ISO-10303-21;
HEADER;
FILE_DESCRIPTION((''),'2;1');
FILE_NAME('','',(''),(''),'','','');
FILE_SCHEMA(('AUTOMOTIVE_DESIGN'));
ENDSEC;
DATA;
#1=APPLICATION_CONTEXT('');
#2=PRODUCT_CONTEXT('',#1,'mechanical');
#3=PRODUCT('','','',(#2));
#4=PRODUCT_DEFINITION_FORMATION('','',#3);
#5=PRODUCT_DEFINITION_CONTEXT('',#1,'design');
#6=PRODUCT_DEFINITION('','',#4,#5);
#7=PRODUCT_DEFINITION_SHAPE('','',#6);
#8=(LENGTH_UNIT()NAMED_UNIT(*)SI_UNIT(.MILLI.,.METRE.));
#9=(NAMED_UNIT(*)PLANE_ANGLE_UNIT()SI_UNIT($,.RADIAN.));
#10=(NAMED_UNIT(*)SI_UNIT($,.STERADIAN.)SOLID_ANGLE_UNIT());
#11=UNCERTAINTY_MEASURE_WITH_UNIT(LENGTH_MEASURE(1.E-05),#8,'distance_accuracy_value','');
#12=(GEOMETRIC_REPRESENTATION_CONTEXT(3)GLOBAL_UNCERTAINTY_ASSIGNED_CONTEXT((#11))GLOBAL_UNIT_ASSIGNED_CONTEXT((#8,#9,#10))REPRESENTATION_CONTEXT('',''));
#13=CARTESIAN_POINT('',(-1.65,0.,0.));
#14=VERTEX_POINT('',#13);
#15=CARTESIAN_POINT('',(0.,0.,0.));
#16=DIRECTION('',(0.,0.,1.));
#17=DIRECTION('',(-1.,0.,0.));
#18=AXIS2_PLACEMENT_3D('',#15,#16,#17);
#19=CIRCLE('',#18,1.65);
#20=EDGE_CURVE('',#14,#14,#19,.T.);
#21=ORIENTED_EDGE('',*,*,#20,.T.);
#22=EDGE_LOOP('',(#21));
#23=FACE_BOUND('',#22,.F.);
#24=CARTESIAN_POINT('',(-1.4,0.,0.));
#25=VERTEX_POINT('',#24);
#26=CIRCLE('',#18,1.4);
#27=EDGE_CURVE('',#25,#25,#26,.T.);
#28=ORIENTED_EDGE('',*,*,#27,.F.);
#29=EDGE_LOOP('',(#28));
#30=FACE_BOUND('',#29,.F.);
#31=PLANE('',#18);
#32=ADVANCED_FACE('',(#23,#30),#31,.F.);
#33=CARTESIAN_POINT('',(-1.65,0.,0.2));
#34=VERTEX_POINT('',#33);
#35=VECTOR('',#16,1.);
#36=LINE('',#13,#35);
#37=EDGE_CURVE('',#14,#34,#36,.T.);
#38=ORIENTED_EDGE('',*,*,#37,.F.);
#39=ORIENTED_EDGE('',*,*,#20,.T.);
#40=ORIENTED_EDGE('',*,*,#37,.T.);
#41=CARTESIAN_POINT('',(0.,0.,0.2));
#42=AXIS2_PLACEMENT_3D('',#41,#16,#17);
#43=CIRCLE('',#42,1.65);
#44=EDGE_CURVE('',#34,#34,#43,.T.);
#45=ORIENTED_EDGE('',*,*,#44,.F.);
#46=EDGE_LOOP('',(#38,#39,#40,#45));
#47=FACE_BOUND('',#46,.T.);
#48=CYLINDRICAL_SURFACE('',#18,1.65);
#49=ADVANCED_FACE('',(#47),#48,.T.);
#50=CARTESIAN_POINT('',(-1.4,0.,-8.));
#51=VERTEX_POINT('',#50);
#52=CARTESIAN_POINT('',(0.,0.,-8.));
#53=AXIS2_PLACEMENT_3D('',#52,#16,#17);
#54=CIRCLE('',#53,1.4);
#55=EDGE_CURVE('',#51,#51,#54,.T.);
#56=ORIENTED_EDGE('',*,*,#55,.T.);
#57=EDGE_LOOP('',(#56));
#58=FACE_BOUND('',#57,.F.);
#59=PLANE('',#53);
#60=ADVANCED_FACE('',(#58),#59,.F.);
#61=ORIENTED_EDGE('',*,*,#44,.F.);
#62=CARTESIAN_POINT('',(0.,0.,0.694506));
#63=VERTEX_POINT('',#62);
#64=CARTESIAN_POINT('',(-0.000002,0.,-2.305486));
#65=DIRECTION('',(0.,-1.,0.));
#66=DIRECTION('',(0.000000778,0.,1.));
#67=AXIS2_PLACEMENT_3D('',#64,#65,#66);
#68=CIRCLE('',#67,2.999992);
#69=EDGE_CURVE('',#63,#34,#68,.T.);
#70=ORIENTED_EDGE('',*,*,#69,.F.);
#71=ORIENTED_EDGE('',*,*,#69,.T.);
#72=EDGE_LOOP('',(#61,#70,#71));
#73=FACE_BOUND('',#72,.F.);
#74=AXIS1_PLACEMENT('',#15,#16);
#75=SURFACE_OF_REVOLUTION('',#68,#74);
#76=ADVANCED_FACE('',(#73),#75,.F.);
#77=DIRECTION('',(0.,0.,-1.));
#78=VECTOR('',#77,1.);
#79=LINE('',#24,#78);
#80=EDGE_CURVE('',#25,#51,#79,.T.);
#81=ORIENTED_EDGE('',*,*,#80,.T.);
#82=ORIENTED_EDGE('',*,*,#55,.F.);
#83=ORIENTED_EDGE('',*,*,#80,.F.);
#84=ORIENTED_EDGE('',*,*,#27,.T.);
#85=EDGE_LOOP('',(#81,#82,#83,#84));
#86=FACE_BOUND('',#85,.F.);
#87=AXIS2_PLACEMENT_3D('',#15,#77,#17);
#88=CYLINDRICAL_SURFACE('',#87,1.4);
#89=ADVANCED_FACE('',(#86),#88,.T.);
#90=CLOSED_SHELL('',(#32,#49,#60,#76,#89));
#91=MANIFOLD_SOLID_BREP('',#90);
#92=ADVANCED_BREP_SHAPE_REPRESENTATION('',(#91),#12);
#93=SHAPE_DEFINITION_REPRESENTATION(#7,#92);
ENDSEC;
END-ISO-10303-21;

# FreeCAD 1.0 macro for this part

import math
import FreeCAD as App
import Part
import Sketcher
from FreeCAD import Vector
Q = App.Units.Quantity

doc = App.newDocument("Part")
body = doc.addObject("PartDesign::Body", "Body")

# Sketch on XZ plane
sketch1 = body.newObject("Sketcher::SketchObject", "Sketch")
sketch1.AttachmentSupport = (doc.getObject("XZ_Plane"), [""])
sketch1.MapMode = "FlatFace"
sketch1.addGeometry([
    Part.LineSegment(Vector(-1.4, 0, 0), Vector(-1.4, -8, 0)),  # 0
    Part.LineSegment(Vector(-1.4, -8, 0), Vector(0, -8, 0)),  # 1
    Part.LineSegment(Vector(0, -8, 0), Vector(0, 0.69, 0)),  # 2
    Part.ArcOfCircle(Part.Circle(Vector(0, -2.31, 0), Vector(0, 0, 1), 3), math.radians(90), math.radians(123)),  # 3
    Part.LineSegment(Vector(-1.65, 0.2, 0), Vector(-1.65, 0, 0)),  # 4
    Part.LineSegment(Vector(-1.65, 0, 0), Vector(-1.4, 0, 0)),  # 5
], False)
sketch1.addConstraint([
    Sketcher.Constraint("Coincident", 0, 2, 1, 1),
    Sketcher.Constraint("Coincident", 1, 2, 2, 1),
    Sketcher.Constraint("Coincident", 2, 2, 3, 1),
    Sketcher.Constraint("Coincident", 3, 2, 4, 1),
    Sketcher.Constraint("Coincident", 4, 2, 5, 1),
    Sketcher.Constraint("Coincident", 5, 2, 0, 1),
    Sketcher.Constraint("Vertical", 0),
    Sketcher.Constraint("Horizontal", 1),
    Sketcher.Constraint("Vertical", 2),
    Sketcher.Constraint("Vertical", 4),
    Sketcher.Constraint("Horizontal", 5),
    Sketcher.Constraint("PointOnObject", 1, 2, -2),
    Sketcher.Constraint("PointOnObject", 4, 2, -1),
    Sketcher.Constraint("DistanceY", 0, 2, 0, 1, Q("8 mm")),
    Sketcher.Constraint("DistanceX", 1, 1, 1, 2, Q("1.4 mm")),
    Sketcher.Constraint("DistanceY", 4, 2, 4, 1, Q("0.2 mm")),
    Sketcher.Constraint("DistanceX", 5, 1, 5, 2, Q("0.25 mm")),
    Sketcher.Constraint("Radius", 3, Q("2.999992 mm")),
    Sketcher.Constraint("DistanceY", 2, 1, 2, 2, Q("8.694506 mm")),
])
revolution = body.newObject("PartDesign::Revolution", "Revolution")
revolution.Profile = sketch1
revolution.ReferenceAxis = (sketch1, ["V_Axis"])
revolution.Angle = 360

doc.recompute()
